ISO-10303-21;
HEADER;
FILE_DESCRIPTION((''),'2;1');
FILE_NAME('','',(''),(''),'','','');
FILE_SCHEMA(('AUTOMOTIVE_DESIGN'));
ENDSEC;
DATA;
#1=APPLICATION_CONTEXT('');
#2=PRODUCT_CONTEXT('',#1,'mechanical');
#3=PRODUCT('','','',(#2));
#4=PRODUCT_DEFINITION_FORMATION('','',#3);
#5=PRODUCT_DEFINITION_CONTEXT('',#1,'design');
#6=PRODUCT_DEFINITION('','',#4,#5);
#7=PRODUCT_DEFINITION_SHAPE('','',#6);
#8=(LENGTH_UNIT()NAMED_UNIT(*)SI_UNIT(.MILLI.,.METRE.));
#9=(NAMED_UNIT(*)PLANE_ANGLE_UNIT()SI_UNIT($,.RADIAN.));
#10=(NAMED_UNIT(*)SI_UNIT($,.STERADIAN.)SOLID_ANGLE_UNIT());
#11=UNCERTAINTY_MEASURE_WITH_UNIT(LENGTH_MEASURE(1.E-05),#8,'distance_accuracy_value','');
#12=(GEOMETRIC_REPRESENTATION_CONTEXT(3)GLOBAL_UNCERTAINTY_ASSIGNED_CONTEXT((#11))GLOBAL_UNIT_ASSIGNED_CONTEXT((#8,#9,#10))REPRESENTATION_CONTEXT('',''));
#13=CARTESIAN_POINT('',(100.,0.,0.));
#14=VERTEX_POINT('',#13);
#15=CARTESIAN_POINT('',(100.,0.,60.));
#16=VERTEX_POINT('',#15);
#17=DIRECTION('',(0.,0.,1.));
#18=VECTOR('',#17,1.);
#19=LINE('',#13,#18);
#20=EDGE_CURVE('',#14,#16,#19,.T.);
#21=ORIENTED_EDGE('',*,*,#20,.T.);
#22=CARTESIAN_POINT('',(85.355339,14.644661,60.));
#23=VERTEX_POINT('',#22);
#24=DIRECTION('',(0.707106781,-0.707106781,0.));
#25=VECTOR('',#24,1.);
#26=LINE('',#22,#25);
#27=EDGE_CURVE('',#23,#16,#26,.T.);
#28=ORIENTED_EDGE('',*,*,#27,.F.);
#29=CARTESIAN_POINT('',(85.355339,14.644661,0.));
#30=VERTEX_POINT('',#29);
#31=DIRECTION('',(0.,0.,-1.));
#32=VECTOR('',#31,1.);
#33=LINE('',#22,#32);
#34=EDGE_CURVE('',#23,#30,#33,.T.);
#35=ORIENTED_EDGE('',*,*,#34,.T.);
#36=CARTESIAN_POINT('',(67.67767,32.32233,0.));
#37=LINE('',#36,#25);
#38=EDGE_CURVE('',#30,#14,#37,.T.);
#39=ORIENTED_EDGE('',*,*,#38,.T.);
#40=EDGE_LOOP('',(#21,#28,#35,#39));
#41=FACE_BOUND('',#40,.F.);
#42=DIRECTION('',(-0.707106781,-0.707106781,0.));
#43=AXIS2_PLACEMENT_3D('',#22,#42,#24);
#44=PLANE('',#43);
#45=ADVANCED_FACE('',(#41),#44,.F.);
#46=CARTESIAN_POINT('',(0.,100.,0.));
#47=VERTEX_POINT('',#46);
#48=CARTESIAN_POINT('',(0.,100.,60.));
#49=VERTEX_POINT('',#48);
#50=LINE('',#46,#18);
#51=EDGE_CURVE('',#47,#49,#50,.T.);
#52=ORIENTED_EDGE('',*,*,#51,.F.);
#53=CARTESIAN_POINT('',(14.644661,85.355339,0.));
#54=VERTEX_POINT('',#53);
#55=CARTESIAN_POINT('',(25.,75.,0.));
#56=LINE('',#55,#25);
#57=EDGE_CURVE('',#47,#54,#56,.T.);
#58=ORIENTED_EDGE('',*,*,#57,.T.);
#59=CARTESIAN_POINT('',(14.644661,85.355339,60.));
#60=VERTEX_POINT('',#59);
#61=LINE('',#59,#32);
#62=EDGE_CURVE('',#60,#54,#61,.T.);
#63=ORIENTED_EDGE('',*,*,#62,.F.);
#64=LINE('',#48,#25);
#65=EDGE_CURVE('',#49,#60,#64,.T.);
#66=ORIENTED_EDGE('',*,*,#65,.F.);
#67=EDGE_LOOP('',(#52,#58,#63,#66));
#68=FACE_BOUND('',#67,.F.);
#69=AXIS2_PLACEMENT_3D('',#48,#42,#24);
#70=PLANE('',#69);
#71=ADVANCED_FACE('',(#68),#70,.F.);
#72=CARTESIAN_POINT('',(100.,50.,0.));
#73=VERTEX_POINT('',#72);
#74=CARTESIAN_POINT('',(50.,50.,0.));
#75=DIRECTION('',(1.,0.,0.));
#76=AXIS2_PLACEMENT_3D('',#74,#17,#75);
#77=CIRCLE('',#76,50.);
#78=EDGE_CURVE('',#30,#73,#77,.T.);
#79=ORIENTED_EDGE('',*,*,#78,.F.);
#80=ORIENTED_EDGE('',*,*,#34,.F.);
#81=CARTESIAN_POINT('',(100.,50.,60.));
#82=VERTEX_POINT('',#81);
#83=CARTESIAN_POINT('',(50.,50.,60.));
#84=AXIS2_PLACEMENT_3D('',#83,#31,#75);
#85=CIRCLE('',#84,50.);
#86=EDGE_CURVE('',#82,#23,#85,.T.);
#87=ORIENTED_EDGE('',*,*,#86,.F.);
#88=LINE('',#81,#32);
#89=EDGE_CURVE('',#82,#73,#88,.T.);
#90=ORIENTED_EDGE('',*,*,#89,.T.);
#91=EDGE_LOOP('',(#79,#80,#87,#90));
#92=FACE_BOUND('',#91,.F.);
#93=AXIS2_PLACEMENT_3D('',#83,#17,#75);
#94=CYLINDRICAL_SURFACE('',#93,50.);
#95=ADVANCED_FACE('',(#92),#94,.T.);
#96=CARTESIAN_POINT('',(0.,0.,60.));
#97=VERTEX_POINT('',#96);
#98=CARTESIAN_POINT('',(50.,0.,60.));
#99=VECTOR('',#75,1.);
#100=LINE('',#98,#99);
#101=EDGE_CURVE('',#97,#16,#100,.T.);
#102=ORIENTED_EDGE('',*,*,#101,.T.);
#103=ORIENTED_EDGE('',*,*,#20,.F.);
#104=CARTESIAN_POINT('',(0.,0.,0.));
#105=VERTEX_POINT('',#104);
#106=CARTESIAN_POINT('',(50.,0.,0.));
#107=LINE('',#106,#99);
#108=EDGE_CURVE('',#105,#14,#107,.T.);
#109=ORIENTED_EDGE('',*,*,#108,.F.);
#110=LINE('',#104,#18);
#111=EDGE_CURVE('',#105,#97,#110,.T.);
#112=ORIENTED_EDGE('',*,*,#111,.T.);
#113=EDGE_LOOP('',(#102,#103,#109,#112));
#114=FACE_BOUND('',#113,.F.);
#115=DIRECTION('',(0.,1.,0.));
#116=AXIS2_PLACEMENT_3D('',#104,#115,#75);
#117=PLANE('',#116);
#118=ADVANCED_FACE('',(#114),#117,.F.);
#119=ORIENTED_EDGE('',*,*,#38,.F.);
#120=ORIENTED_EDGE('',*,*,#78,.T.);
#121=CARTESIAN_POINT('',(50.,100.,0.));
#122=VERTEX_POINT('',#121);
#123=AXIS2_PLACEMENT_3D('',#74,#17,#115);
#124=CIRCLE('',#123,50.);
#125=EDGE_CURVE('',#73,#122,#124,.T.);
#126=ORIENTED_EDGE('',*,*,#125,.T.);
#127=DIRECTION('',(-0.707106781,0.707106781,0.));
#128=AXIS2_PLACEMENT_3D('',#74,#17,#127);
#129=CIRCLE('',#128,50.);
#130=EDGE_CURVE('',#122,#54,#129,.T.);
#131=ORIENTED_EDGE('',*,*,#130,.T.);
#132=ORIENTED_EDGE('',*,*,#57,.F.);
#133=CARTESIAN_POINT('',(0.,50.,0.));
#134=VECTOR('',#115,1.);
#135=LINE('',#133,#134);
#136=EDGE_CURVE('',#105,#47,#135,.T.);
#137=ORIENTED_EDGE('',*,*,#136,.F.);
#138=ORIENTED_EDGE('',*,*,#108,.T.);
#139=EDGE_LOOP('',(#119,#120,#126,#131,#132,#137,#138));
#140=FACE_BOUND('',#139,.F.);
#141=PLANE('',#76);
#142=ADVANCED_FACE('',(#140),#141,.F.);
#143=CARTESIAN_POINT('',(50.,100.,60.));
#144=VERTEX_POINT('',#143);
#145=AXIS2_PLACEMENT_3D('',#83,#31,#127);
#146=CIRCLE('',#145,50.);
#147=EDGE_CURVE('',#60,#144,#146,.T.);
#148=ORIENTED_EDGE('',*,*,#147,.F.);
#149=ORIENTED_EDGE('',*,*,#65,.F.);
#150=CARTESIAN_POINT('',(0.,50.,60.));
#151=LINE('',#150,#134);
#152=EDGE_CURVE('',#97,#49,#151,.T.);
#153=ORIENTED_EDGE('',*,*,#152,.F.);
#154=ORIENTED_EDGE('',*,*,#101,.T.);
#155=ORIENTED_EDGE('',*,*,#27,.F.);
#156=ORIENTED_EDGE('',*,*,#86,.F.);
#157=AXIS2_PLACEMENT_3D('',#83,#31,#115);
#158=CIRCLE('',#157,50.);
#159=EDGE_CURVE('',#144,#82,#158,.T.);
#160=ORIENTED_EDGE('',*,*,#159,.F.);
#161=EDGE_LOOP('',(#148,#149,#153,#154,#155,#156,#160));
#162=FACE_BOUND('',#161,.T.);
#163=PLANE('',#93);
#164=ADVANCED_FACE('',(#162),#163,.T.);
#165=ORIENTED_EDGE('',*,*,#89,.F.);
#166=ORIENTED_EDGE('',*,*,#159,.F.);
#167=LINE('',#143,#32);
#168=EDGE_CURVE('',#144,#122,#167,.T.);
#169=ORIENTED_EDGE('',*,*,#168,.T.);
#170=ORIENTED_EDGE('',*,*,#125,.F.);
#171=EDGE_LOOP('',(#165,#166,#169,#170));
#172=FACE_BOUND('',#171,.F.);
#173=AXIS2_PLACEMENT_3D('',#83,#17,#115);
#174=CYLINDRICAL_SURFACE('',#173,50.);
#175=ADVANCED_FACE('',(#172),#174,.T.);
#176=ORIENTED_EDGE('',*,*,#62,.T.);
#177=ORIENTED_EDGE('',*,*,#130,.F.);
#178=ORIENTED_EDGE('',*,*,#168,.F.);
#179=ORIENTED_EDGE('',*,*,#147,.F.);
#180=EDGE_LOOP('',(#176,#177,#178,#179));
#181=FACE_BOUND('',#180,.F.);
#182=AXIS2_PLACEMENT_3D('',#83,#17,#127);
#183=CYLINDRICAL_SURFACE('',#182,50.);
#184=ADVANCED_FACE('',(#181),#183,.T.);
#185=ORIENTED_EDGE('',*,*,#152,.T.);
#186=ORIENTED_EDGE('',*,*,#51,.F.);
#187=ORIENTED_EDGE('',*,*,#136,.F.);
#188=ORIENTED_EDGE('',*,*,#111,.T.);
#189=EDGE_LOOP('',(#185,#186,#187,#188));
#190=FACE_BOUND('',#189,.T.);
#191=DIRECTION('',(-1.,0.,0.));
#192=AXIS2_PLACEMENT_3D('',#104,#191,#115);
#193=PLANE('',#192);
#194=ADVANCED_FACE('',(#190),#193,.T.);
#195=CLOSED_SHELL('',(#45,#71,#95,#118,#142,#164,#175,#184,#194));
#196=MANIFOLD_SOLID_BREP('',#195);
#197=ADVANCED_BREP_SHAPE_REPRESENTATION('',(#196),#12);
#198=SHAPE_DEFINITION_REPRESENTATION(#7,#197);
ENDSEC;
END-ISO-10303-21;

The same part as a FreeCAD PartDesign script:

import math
import FreeCAD as App
import Part
import Sketcher
Q = App.Units.Quantity

doc = App.newDocument("Part")
body = doc.addObject("PartDesign::Body", "Body")

# Sketch on XY plane
sketch1 = body.newObject("Sketcher::SketchObject", "Sketch")
sketch1.AttachmentSupport = (doc.getObject("XY_Plane"), [""])
sketch1.MapMode = "FlatFace"
sketch1.addGeometry(Part.LineSegment(App.Vector(0, 100, 0), App.Vector(0, 0, 0)), False)
sketch1.addGeometry(Part.LineSegment(App.Vector(0, 0, 0), App.Vector(100, 0, 0)), False)
sketch1.addGeometry(Part.LineSegment(App.Vector(100, 0, 0), App.Vector(100, 100, 0)), False)
sketch1.addGeometry(Part.LineSegment(App.Vector(100, 100, 0), App.Vector(0, 100, 0)), False)
sketch1.addConstraint(Sketcher.Constraint("Coincident", 0, 2, 1, 1))
sketch1.addConstraint(Sketcher.Constraint("Coincident", 1, 2, 2, 1))
sketch1.addConstraint(Sketcher.Constraint("Coincident", 2, 2, 3, 1))
sketch1.addConstraint(Sketcher.Constraint("Coincident", 3, 2, 0, 1))
sketch1.addConstraint(Sketcher.Constraint("Vertical", 0))
sketch1.addConstraint(Sketcher.Constraint("Horizontal", 1))
sketch1.addConstraint(Sketcher.Constraint("Vertical", 2))
sketch1.addConstraint(Sketcher.Constraint("Horizontal", 3))
sketch1.addConstraint(Sketcher.Constraint("Coincident", 0, 2, -1, 1))
sketch1.addConstraint(Sketcher.Constraint("Equal", 3, 0))
sketch1.addConstraint(Sketcher.Constraint("DistanceX", 1, 1, 1, 2, Q("100 mm")))
pad1 = body.newObject("PartDesign::Pad", "Pad")
pad1.Profile = sketch1
pad1.Length = 60

# Sketch on XY plane
sketch2 = body.newObject("Sketcher::SketchObject", "Sketch001")
sketch2.AttachmentSupport = (doc.getObject("XY_Plane"), [""])
sketch2.MapMode = "FlatFace"
sketch2.AttachmentOffset = App.Placement(App.Vector(0, 0, 60), App.Rotation())
sketch2.addGeometry(Part.ArcOfCircle(Part.Circle(App.Vector(50, 50, 0), App.Vector(0, 0, 1), 50), math.radians(0), math.radians(90)), False)
sketch2.addGeometry(Part.LineSegment(App.Vector(100, 50, 0), App.Vector(100, 100, 0)), False)
sketch2.addGeometry(Part.LineSegment(App.Vector(100, 100, 0), App.Vector(50, 100, 0)), False)
sketch2.addGeometry(Part.LineSegment(App.Vector(100, 0, 0), App.Vector(100, 50, 0)), False)
sketch2.addGeometry(Part.ArcOfCircle(Part.Circle(App.Vector(50, 50, 0), App.Vector(0, 0, 1), 50), math.radians(-45), math.radians(0)), False)
sketch2.addGeometry(Part.LineSegment(App.Vector(85, 15, 0), App.Vector(100, 0, 0)), False)
sketch2.addGeometry(Part.ArcOfCircle(Part.Circle(App.Vector(50, 50, 0), App.Vector(0, 0, 1), 50), math.radians(90), math.radians(135)), False)
sketch2.addGeometry(Part.LineSegment(App.Vector(50, 100, 0), App.Vector(0, 100, 0)), False)
sketch2.addGeometry(Part.LineSegment(App.Vector(0, 100, 0), App.Vector(15, 85, 0)), False)
sketch2.addConstraint(Sketcher.Constraint("Tangent", 0, 1, 1, 1))
sketch2.addConstraint(Sketcher.Constraint("Coincident", 1, 2, 2, 1))
sketch2.addConstraint(Sketcher.Constraint("Tangent", 2, 2, 0, 2))
sketch2.addConstraint(Sketcher.Constraint("Tangent", 3, 2, 4, 2))
sketch2.addConstraint(Sketcher.Constraint("Coincident", 4, 1, 5, 1))
sketch2.addConstraint(Sketcher.Constraint("Coincident", 5, 2, 3, 1))
sketch2.addConstraint(Sketcher.Constraint("Tangent", 6, 1, 7, 1))
sketch2.addConstraint(Sketcher.Constraint("Coincident", 7, 2, 8, 1))
sketch2.addConstraint(Sketcher.Constraint("Coincident", 8, 2, 6, 2))
sketch2.addConstraint(Sketcher.Constraint("Vertical", 1))
sketch2.addConstraint(Sketcher.Constraint("Horizontal", 2))
sketch2.addConstraint(Sketcher.Constraint("Vertical", 3))
sketch2.addConstraint(Sketcher.Constraint("Horizontal", 7))
sketch2.addConstraint(Sketcher.Constraint("Coincident", 4, 3, 0, 3))
sketch2.addConstraint(Sketcher.Constraint("Coincident", 6, 3, 0, 3))
sketch2.addConstraint(Sketcher.Constraint("Equal", 0, 4))
sketch2.addConstraint(Sketcher.Constraint("Equal", 4, 6))
sketch2.addConstraint(Sketcher.Constraint("PointOnObject", 5, 2, -1))
sketch2.addConstraint(Sketcher.Constraint("PointOnObject", 7, 2, -2))
sketch2.addConstraint(Sketcher.Constraint("Parallel", 5, 8))
sketch2.addConstraint(Sketcher.Constraint("Equal", 2, 7))
sketch2.addConstraint(Sketcher.Constraint("Equal", 1, 3))
sketch2.addConstraint(Sketcher.Constraint("Radius", 0, Q("50 mm")))
sketch2.addConstraint(Sketcher.Constraint("Angle", 5, Q("-45 deg")))
pocket1 = body.newObject("PartDesign::Pocket", "Pocket")
pocket1.Profile = sketch2
pocket1.Type = "ThroughAll"

doc.recompute()
